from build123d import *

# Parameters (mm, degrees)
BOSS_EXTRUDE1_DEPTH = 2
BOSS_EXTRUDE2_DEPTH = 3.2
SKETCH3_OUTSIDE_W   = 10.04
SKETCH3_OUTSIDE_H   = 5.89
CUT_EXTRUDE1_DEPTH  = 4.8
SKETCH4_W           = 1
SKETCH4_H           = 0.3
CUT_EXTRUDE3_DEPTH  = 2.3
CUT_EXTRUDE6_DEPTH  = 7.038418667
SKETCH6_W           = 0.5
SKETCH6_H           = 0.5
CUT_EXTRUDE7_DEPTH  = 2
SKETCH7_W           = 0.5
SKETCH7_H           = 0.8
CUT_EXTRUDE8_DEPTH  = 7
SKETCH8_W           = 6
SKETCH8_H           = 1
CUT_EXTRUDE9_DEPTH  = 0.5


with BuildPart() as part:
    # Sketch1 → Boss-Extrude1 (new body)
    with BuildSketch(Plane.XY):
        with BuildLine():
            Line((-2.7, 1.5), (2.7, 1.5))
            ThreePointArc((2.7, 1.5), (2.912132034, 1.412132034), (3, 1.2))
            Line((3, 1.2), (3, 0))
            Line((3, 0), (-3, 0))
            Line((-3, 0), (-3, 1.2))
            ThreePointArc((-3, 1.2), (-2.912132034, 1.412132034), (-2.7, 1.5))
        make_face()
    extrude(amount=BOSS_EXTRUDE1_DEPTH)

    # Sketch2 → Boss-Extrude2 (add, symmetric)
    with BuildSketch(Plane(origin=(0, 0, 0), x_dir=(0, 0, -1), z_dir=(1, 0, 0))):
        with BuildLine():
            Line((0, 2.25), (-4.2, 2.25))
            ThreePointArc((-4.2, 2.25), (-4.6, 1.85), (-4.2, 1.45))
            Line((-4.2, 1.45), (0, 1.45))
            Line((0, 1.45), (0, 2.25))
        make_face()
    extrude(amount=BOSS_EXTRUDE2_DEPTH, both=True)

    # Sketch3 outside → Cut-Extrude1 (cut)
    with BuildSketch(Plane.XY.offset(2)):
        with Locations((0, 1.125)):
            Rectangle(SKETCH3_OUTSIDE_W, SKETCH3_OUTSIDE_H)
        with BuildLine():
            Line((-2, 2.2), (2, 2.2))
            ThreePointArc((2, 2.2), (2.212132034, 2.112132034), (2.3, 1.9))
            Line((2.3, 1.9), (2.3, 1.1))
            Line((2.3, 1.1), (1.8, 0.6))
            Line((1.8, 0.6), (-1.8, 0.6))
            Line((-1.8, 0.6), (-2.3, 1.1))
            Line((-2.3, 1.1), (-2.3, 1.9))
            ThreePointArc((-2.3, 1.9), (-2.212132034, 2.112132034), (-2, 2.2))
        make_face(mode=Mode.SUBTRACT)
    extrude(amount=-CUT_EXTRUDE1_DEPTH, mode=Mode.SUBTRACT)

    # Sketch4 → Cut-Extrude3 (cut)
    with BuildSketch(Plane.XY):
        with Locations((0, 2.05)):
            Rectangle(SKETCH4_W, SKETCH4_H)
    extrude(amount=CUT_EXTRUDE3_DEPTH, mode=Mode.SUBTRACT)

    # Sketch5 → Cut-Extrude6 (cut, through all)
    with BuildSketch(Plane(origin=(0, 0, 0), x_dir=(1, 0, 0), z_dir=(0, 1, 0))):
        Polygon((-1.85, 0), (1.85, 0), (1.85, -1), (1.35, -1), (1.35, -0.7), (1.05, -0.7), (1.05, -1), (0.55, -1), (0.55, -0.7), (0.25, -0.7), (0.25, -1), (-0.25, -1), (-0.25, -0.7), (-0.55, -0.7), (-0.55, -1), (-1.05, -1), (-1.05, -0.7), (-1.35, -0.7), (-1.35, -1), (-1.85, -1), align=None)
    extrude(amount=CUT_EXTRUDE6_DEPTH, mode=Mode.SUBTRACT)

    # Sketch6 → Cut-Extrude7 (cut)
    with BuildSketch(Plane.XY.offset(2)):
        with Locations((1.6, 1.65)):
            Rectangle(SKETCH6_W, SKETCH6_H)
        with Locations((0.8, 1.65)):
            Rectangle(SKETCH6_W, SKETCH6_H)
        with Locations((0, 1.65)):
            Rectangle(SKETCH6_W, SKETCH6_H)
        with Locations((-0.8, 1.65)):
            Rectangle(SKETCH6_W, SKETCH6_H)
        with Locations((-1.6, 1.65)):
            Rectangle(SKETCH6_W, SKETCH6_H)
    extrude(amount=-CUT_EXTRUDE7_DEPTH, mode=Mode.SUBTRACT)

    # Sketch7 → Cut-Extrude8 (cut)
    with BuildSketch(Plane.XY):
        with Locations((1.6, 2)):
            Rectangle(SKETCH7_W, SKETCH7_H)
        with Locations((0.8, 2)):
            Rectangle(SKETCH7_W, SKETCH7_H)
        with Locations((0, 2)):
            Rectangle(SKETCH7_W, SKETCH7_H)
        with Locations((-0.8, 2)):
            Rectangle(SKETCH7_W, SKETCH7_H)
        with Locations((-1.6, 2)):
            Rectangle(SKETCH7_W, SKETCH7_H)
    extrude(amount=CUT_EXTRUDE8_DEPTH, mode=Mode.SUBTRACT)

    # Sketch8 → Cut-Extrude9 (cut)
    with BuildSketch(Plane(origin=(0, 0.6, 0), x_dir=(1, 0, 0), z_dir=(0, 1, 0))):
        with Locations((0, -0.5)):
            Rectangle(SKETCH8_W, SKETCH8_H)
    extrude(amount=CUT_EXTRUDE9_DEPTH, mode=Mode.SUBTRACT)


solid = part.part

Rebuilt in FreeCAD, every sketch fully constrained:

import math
import FreeCAD as App
import Part
import Sketcher
from FreeCAD import Vector
Q = App.Units.Quantity


def add_polygon(sketch, points):
    """Adds a closed chain of lines whose ends are joined by coincident constraints."""
    first, n = sketch.GeometryCount, len(points)
    for a, b in zip(points, points[1:] + points[:1]):
        sketch.addGeometry(Part.LineSegment(App.Vector(*a, 0), App.Vector(*b, 0)), False)
    for i in range(n):
        sketch.addConstraint(Sketcher.Constraint("Coincident", first + i, 2, first + (i + 1) % n, 1))

doc = App.newDocument("Part")
body = doc.addObject("PartDesign::Body", "Body")

sketch1 = doc.addObject("Sketcher::SketchObject", "Sketch")
body.addObject(sketch1)
sketch1.AttachmentSupport = (doc.XY_Plane, [""])
sketch1.MapMode = "FlatFace"
sketch1.addGeometry([
    Part.LineSegment(Vector(2.7, 1.5, 0), Vector(-2.7, 1.5, 0)),
    Part.ArcOfCircle(Part.Circle(Vector(-2.7, 1.2, 0), Vector(0, 0, 1), 0.3), math.radians(90), math.radians(180)),
    Part.LineSegment(Vector(-3, 1.2, 0), Vector(-3, 0, 0)),
    Part.LineSegment(Vector(-3, 0, 0), Vector(3, 0, 0)),
    Part.LineSegment(Vector(3, 0, 0), Vector(3, 1.2, 0)),
    Part.ArcOfCircle(Part.Circle(Vector(2.7, 1.2, 0), Vector(0, 0, 1), 0.3), math.radians(0), math.radians(90)),
], False)
sketch1.addConstraint([
    Sketcher.Constraint("Tangent", 0, 2, 1, 1),
    Sketcher.Constraint("Tangent", 1, 2, 2, 1),
    Sketcher.Constraint("Coincident", 2, 2, 3, 1),
    Sketcher.Constraint("Coincident", 3, 2, 4, 1),
    Sketcher.Constraint("Tangent", 4, 2, 5, 1),
    Sketcher.Constraint("Tangent", 5, 2, 0, 1),
    Sketcher.Constraint("Horizontal", 0),
    Sketcher.Constraint("Vertical", 2),
    Sketcher.Constraint("Horizontal", 3),
    Sketcher.Constraint("Vertical", 4),
    Sketcher.Constraint("Equal", 1, 5),
    Sketcher.Constraint("Symmetric", 2, 2, 3, 2, -1, 1),
    Sketcher.Constraint("Radius", 1, Q("0.3 mm")),
    Sketcher.Constraint("DistanceX", 3, 1, 3, 2, Q("6 mm")),
    Sketcher.Constraint("DistanceY", 2, 2, 2, 1, Q("1.2 mm")),
])
pad1 = doc.addObject("PartDesign::Pad", "Pad")
body.addObject(pad1)
pad1.Profile = sketch1
pad1.Length = 2

sketch2 = doc.addObject("Sketcher::SketchObject", "Sketch001")
body.addObject(sketch2)
sketch2.AttachmentSupport = (doc.YZ_Plane, [""])
sketch2.MapMode = "FlatFace"
sketch2.addGeometry([
    Part.LineSegment(Vector(2.25, 0, 0), Vector(2.25, 4.2, 0)),
    Part.ArcOfCircle(Part.Circle(Vector(1.85, 4.2, 0), Vector(0, 0, 1), 0.4), math.radians(0), math.radians(180)),
    Part.LineSegment(Vector(1.45, 4.2, 0), Vector(1.45, 0, 0)),
    Part.LineSegment(Vector(1.45, 0, 0), Vector(2.25, 0, 0)),
], False)
sketch2.addConstraint([
    Sketcher.Constraint("Tangent", 0, 2, 1, 1),
    Sketcher.Constraint("Tangent", 1, 2, 2, 1),
    Sketcher.Constraint("Coincident", 2, 2, 3, 1),
    Sketcher.Constraint("Coincident", 3, 2, 0, 1),
    Sketcher.Constraint("Vertical", 0),
    Sketcher.Constraint("Vertical", 2),
    Sketcher.Constraint("Horizontal", 3),
    Sketcher.Constraint("PointOnObject", 2, 2, -1),
    Sketcher.Constraint("Radius", 1, Q("0.4 mm")),
    Sketcher.Constraint("DistanceY", 0, 1, 0, 2, Q("4.2 mm")),
    Sketcher.Constraint("DistanceX", -1, 1, 1, 3, Q("1.85 mm")),
])
pad2 = doc.addObject("PartDesign::Pad", "Pad001")
body.addObject(pad2)
pad2.Profile = sketch2
pad2.Length = 6.4
pad2.Midplane = True

sketch3 = doc.addObject("Sketcher::SketchObject", "Sketch002")
body.addObject(sketch3)
sketch3.AttachmentSupport = (doc.XY_Plane, [""])
sketch3.MapMode = "FlatFace"
sketch3.AttachmentOffset = App.Placement(Vector(0, 0, 2), App.Rotation())
add_polygon(sketch3, [(-5.02, 4.07), (-5.02, -1.82), (5.02, -1.82), (5.02, 4.07)])
sketch3.addGeometry(Part.ArcOfCircle(Part.Circle(Vector(-2, 1.9, 0), Vector(0, 0, 1), 0.3), math.radians(90), math.radians(180)), False)
sketch3.addGeometry(Part.LineSegment(Vector(-2, 2.2, 0), Vector(2, 2.2, 0)), False)
sketch3.addGeometry(Part.ArcOfCircle(Part.Circle(Vector(2, 1.9, 0), Vector(0, 0, 1), 0.3), math.radians(0), math.radians(90)), False)
sketch3.addGeometry(Part.LineSegment(Vector(2.3, 1.9, 0), Vector(2.3, 1.1, 0)), False)
sketch3.addGeometry(Part.LineSegment(Vector(2.3, 1.1, 0), Vector(1.8, 0.6, 0)), False)
sketch3.addGeometry(Part.LineSegment(Vector(1.8, 0.6, 0), Vector(-1.8, 0.6, 0)), False)
sketch3.addGeometry(Part.LineSegment(Vector(-1.8, 0.6, 0), Vector(-2.3, 1.1, 0)), False)
sketch3.addGeometry(Part.LineSegment(Vector(-2.3, 1.1, 0), Vector(-2.3, 1.9, 0)), False)
sketch3.addConstraint([
    Sketcher.Constraint("Tangent", 4, 1, 5, 1),
    Sketcher.Constraint("Tangent", 5, 2, 6, 2),
    Sketcher.Constraint("Tangent", 6, 1, 7, 1),
    Sketcher.Constraint("Coincident", 7, 2, 8, 1),
    Sketcher.Constraint("Coincident", 8, 2, 9, 1),
    Sketcher.Constraint("Coincident", 9, 2, 10, 1),
    Sketcher.Constraint("Coincident", 10, 2, 11, 1),
    Sketcher.Constraint("Tangent", 11, 2, 4, 2),
    Sketcher.Constraint("Vertical", 0),
    Sketcher.Constraint("Horizontal", 1),
    Sketcher.Constraint("Vertical", 2),
    Sketcher.Constraint("Horizontal", 3),
    Sketcher.Constraint("Horizontal", 5),
    Sketcher.Constraint("Vertical", 7),
    Sketcher.Constraint("Horizontal", 9),
    Sketcher.Constraint("Vertical", 11),
    Sketcher.Constraint("Equal", 4, 6),
    Sketcher.Constraint("Symmetric", 7, 2, 10, 2, -2),
    Sketcher.Constraint("Perpendicular", 8, 10),
    Sketcher.Constraint("Equal", 8, 10),
    Sketcher.Constraint("Radius", 4, Q("0.3 mm")),
    Sketcher.Constraint("DistanceX", 5, 1, 5, 2, Q("4 mm")),
    Sketcher.Constraint("DistanceX", 9, 2, 9, 1, Q("3.6 mm")),
    Sketcher.Constraint("DistanceY", 7, 2, 7, 1, Q("0.8 mm")),
    Sketcher.Constraint("DistanceX", 1, 1, 1, 2, Q("10.04 mm")),
    Sketcher.Constraint("DistanceY", 0, 2, 0, 1, Q("5.89 mm")),
    Sketcher.Constraint("DistanceY", -1, 1, 4, 3, Q("1.9 mm")),
    Sketcher.Constraint("DistanceX", 0, 2, -1, 1, Q("5.02 mm")),
    Sketcher.Constraint("DistanceY", 0, 2, -1, 1, Q("1.82 mm")),
])
pocket1 = doc.addObject("PartDesign::Pocket", "Pocket")
body.addObject(pocket1)
pocket1.Profile = sketch3
pocket1.Length = 4.8

sketch4 = doc.addObject("Sketcher::SketchObject", "Sketch003")
body.addObject(sketch4)
sketch4.AttachmentSupport = (doc.XY_Plane, [""])
sketch4.MapMode = "FlatFace"
add_polygon(sketch4, [(-0.5, 2.2), (-0.5, 1.9), (0.5, 1.9), (0.5, 2.2)])
sketch4.addConstraint([
    Sketcher.Constraint("Vertical", 0),
    Sketcher.Constraint("Horizontal", 1),
    Sketcher.Constraint("Vertical", 2),
    Sketcher.Constraint("Horizontal", 3),
    Sketcher.Constraint("DistanceX", 1, 1, 1, 2, Q("1 mm")),
    Sketcher.Constraint("DistanceY", 0, 2, 0, 1, Q("0.3 mm")),
    Sketcher.Constraint("DistanceX", 0, 2, -1, 1, Q("0.5 mm")),
    Sketcher.Constraint("DistanceY", -1, 1, 0, 2, Q("1.9 mm")),
])
pocket2 = doc.addObject("PartDesign::Pocket", "Pocket001")
body.addObject(pocket2)
pocket2.Profile = sketch4
pocket2.Length = 2.3
pocket2.Reversed = True

sketch5 = doc.addObject("Sketcher::SketchObject", "Sketch004")
body.addObject(sketch5)
sketch5.AttachmentSupport = (doc.XZ_Plane, [""])
sketch5.MapMode = "FlatFace"
add_polygon(sketch5, [(1.85, 0), (-1.85, 0), (-1.85, 1), (-1.35, 1), (-1.35, 0.7), (-1.05, 0.7), (-1.05, 1), (-0.55, 1), (-0.55, 0.7), (-0.25, 0.7), (-0.25, 1), (0.25, 1), (0.25, 0.7), (0.55, 0.7), (0.55, 1), (1.05, 1), (1.05, 0.7), (1.35, 0.7), (1.35, 1), (1.85, 1)])
sketch5.addConstraint([
    Sketcher.Constraint("Horizontal", 0),
    Sketcher.Constraint("Vertical", 1),
    Sketcher.Constraint("Horizontal", 2),
    Sketcher.Constraint("Vertical", 3),
    Sketcher.Constraint("Horizontal", 4),
    Sketcher.Constraint("Vertical", 5),
    Sketcher.Constraint("Horizontal", 6),
    Sketcher.Constraint("Vertical", 7),
    Sketcher.Constraint("Horizontal", 8),
    Sketcher.Constraint("Vertical", 9),
    Sketcher.Constraint("Horizontal", 10),
    Sketcher.Constraint("Vertical", 11),
    Sketcher.Constraint("Horizontal", 12),
    Sketcher.Constraint("Vertical", 13),
    Sketcher.Constraint("Horizontal", 14),
    Sketcher.Constraint("Vertical", 15),
    Sketcher.Constraint("Horizontal", 16),
    Sketcher.Constraint("Vertical", 17),
    Sketcher.Constraint("Horizontal", 18),
    Sketcher.Constraint("Vertical", 19),
    Sketcher.Constraint("Symmetric", 0, 2, 19, 2, -1, 1),
    Sketcher.Constraint("Symmetric", 8, 2, 11, 2, -2),
    Sketcher.Constraint("Symmetric", 6, 2, 13, 2, -2),
    Sketcher.Constraint("Symmetric", 4, 2, 15, 2, -2),
    Sketcher.Constraint("Symmetric", 2, 2, 17, 2, -2),
    Sketcher.Constraint("Horizontal", 2, 2, 5, 2),
    Sketcher.Constraint("Horizontal", 4, 2, 7, 2),
    Sketcher.Constraint("Horizontal", 6, 2, 9, 2),
    Sketcher.Constraint("Equal", 2, 6),
    Sketcher.Constraint("Equal", 4, 8),
    Sketcher.Constraint("Equal", 6, 10),
    Sketcher.Constraint("Equal", 16, 3),
    Sketcher.Constraint("DistanceY", 1, 1, 1, 2, Q("1 mm")),
    Sketcher.Constraint("DistanceX", 0, 2, 0, 1, Q("3.7 mm")),
    Sketcher.Constraint("DistanceX", 2, 1, 2, 2, Q("0.5 mm")),
])
pocket3 = doc.addObject("PartDesign::Pocket", "Pocket002")
body.addObject(pocket3)
pocket3.Profile = sketch5
pocket3.Type = "ThroughAll"

sketch6 = doc.addObject("Sketcher::SketchObject", "Sketch005")
body.addObject(sketch6)
sketch6.AttachmentSupport = (doc.XY_Plane, [""])
sketch6.MapMode = "FlatFace"
sketch6.AttachmentOffset = App.Placement(Vector(0, 0, 2), App.Rotation())
add_polygon(sketch6, [(1.4, 1.9), (1.4, 1.4), (1.9, 1.4), (1.9, 1.9)])
add_polygon(sketch6, [(0.6, 1.9), (0.6, 1.4), (1.1, 1.4), (1.1, 1.9)])
add_polygon(sketch6, [(-0.2, 1.9), (-0.2, 1.4), (0.2, 1.4), (0.2, 1.9)])
add_polygon(sketch6, [(-1.1, 1.9), (-1.1, 1.4), (-0.6, 1.4), (-0.6, 1.9)])
add_polygon(sketch6, [(-1.9, 1.9), (-1.9, 1.4), (-1.4, 1.4), (-1.4, 1.9)])
sketch6.addConstraint([
    Sketcher.Constraint("Vertical", 0),
    Sketcher.Constraint("Horizontal", 1),
    Sketcher.Constraint("Vertical", 2),
    Sketcher.Constraint("Horizontal", 3),
    Sketcher.Constraint("Vertical", 4),
    Sketcher.Constraint("Horizontal", 5),
    Sketcher.Constraint("Vertical", 6),
    Sketcher.Constraint("Horizontal", 7),
    Sketcher.Constraint("Vertical", 8),
    Sketcher.Constraint("Horizontal", 9),
    Sketcher.Constraint("Vertical", 10),
    Sketcher.Constraint("Horizontal", 11),
    Sketcher.Constraint("Vertical", 12),
    Sketcher.Constraint("Horizontal", 13),
    Sketcher.Constraint("Vertical", 14),
    Sketcher.Constraint("Horizontal", 15),
    Sketcher.Constraint("Vertical", 16),
    Sketcher.Constraint("Horizontal", 17),
    Sketcher.Constraint("Vertical", 18),
    Sketcher.Constraint("Horizontal", 19),
    Sketcher.Constraint("Symmetric", 5, 2, 12, 2, -2),
    Sketcher.Constraint("Symmetric", 7, 2, 14, 2, -2),
    Sketcher.Constraint("Symmetric", 1, 2, 16, 2, -2),
    Sketcher.Constraint("Symmetric", 3, 2, 18, 2, -2),
    Sketcher.Constraint("Horizontal", 1, 2, 4, 2),
    Sketcher.Constraint("Horizontal", 3, 2, 6, 2),
    Sketcher.Constraint("Horizontal", 5, 2, 8, 2),
    Sketcher.Constraint("Horizontal", 7, 2, 10, 2),
    Sketcher.Constraint("Equal", 3, 5),
    Sketcher.Constraint("Equal", 7, 9),
    Sketcher.Constraint("Equal", 19, 0),
    Sketcher.Constraint("DistanceX", 1, 1, 1, 2, Q("0.5 mm")),
    Sketcher.Constraint("DistanceY", -1, 1, 0, 2, Q("1.4 mm")),
    Sketcher.Constraint("DistanceX", 4, 2, 0, 2, Q("0.8 mm")),
    Sketcher.Constraint("DistanceX", 8, 2, 4, 2, Q("0.8 mm")),
    Sketcher.Constraint("DistanceX", 12, 2, 8, 2, Q("0.8 mm")),
])
pocket4 = doc.addObject("PartDesign::Pocket", "Pocket003")
body.addObject(pocket4)
pocket4.Profile = sketch6
pocket4.Length = 2

sketch7 = doc.addObject("Sketcher::SketchObject", "Sketch006")
body.addObject(sketch7)
sketch7.AttachmentSupport = (doc.XY_Plane, [""])
sketch7.MapMode = "FlatFace"
add_polygon(sketch7, [(1.4, 2.4), (1.4, 1.6), (1.9, 1.6), (1.9, 2.4)])
add_polygon(sketch7, [(0.6, 2.4), (0.6, 1.6), (1.1, 1.6), (1.1, 2.4)])
add_polygon(sketch7, [(-0.2, 2.4), (-0.2, 1.6), (0.2, 1.6), (0.2, 2.4)])
add_polygon(sketch7, [(-1.1, 2.4), (-1.1, 1.6), (-0.6, 1.6), (-0.6, 2.4)])
add_polygon(sketch7, [(-1.9, 2.4), (-1.9, 1.6), (-1.4, 1.6), (-1.4, 2.4)])
sketch7.addConstraint([
    Sketcher.Constraint("Vertical", 0),
    Sketcher.Constraint("Horizontal", 1),
    Sketcher.Constraint("Vertical", 2),
    Sketcher.Constraint("Horizontal", 3),
    Sketcher.Constraint("Vertical", 4),
    Sketcher.Constraint("Horizontal", 5),
    Sketcher.Constraint("Vertical", 6),
    Sketcher.Constraint("Horizontal", 7),
    Sketcher.Constraint("Vertical", 8),
    Sketcher.Constraint("Horizontal", 9),
    Sketcher.Constraint("Vertical", 10),
    Sketcher.Constraint("Horizontal", 11),
    Sketcher.Constraint("Vertical", 12),
    Sketcher.Constraint("Horizontal", 13),
    Sketcher.Constraint("Vertical", 14),
    Sketcher.Constraint("Horizontal", 15),
    Sketcher.Constraint("Vertical", 16),
    Sketcher.Constraint("Horizontal", 17),
    Sketcher.Constraint("Vertical", 18),
    Sketcher.Constraint("Horizontal", 19),
    Sketcher.Constraint("Symmetric", 5, 2, 12, 2, -2),
    Sketcher.Constraint("Symmetric", 7, 2, 14, 2, -2),
    Sketcher.Constraint("Symmetric", 1, 2, 16, 2, -2),
    Sketcher.Constraint("Symmetric", 3, 2, 18, 2, -2),
    Sketcher.Constraint("Horizontal", 1, 2, 4, 2),
    Sketcher.Constraint("Horizontal", 3, 2, 6, 2),
    Sketcher.Constraint("Horizontal", 5, 2, 8, 2),
    Sketcher.Constraint("Horizontal", 7, 2, 10, 2),
    Sketcher.Constraint("Equal", 3, 5),
    Sketcher.Constraint("Equal", 7, 9),
    Sketcher.Constraint("DistanceX", 1, 1, 1, 2, Q("0.5 mm")),
    Sketcher.Constraint("DistanceY", 0, 2, 0, 1, Q("0.8 mm")),
    Sketcher.Constraint("DistanceY", -1, 1, 0, 2, Q("1.6 mm")),
    Sketcher.Constraint("DistanceX", 4, 2, 0, 2, Q("0.8 mm")),
    Sketcher.Constraint("DistanceX", 8, 2, 4, 2, Q("0.8 mm")),
    Sketcher.Constraint("DistanceX", 12, 2, 8, 2, Q("0.8 mm")),
])
pocket5 = doc.addObject("PartDesign::Pocket", "Pocket004")
body.addObject(pocket5)
pocket5.Profile = sketch7
pocket5.Length = 7
pocket5.Reversed = True

sketch8 = doc.addObject("Sketcher::SketchObject", "Sketch007")
body.addObject(sketch8)
sketch8.AttachmentSupport = (doc.XZ_Plane, [""])
sketch8.MapMode = "FlatFace"
sketch8.AttachmentOffset = App.Placement(Vector(0, 0, -0.6), App.Rotation())
add_polygon(sketch8, [(-3, 0), (-3, 1), (3, 1), (3, 0)])
sketch8.addConstraint([
    Sketcher.Constraint("Vertical", 0),
    Sketcher.Constraint("Horizontal", 1),
    Sketcher.Constraint("Vertical", 2),
    Sketcher.Constraint("Horizontal", 3),
    Sketcher.Constraint("Symmetric", 2, 2, 3, 2, -1, 1),
    Sketcher.Constraint("DistanceX", 1, 1, 1, 2, Q("6 mm")),
    Sketcher.Constraint("DistanceY", 0, 1, 0, 2, Q("1 mm")),
])
pocket6 = doc.addObject("PartDesign::Pocket", "Pocket005")
body.addObject(pocket6)
pocket6.Profile = sketch8
pocket6.Length = 0.5

doc.recompute()
